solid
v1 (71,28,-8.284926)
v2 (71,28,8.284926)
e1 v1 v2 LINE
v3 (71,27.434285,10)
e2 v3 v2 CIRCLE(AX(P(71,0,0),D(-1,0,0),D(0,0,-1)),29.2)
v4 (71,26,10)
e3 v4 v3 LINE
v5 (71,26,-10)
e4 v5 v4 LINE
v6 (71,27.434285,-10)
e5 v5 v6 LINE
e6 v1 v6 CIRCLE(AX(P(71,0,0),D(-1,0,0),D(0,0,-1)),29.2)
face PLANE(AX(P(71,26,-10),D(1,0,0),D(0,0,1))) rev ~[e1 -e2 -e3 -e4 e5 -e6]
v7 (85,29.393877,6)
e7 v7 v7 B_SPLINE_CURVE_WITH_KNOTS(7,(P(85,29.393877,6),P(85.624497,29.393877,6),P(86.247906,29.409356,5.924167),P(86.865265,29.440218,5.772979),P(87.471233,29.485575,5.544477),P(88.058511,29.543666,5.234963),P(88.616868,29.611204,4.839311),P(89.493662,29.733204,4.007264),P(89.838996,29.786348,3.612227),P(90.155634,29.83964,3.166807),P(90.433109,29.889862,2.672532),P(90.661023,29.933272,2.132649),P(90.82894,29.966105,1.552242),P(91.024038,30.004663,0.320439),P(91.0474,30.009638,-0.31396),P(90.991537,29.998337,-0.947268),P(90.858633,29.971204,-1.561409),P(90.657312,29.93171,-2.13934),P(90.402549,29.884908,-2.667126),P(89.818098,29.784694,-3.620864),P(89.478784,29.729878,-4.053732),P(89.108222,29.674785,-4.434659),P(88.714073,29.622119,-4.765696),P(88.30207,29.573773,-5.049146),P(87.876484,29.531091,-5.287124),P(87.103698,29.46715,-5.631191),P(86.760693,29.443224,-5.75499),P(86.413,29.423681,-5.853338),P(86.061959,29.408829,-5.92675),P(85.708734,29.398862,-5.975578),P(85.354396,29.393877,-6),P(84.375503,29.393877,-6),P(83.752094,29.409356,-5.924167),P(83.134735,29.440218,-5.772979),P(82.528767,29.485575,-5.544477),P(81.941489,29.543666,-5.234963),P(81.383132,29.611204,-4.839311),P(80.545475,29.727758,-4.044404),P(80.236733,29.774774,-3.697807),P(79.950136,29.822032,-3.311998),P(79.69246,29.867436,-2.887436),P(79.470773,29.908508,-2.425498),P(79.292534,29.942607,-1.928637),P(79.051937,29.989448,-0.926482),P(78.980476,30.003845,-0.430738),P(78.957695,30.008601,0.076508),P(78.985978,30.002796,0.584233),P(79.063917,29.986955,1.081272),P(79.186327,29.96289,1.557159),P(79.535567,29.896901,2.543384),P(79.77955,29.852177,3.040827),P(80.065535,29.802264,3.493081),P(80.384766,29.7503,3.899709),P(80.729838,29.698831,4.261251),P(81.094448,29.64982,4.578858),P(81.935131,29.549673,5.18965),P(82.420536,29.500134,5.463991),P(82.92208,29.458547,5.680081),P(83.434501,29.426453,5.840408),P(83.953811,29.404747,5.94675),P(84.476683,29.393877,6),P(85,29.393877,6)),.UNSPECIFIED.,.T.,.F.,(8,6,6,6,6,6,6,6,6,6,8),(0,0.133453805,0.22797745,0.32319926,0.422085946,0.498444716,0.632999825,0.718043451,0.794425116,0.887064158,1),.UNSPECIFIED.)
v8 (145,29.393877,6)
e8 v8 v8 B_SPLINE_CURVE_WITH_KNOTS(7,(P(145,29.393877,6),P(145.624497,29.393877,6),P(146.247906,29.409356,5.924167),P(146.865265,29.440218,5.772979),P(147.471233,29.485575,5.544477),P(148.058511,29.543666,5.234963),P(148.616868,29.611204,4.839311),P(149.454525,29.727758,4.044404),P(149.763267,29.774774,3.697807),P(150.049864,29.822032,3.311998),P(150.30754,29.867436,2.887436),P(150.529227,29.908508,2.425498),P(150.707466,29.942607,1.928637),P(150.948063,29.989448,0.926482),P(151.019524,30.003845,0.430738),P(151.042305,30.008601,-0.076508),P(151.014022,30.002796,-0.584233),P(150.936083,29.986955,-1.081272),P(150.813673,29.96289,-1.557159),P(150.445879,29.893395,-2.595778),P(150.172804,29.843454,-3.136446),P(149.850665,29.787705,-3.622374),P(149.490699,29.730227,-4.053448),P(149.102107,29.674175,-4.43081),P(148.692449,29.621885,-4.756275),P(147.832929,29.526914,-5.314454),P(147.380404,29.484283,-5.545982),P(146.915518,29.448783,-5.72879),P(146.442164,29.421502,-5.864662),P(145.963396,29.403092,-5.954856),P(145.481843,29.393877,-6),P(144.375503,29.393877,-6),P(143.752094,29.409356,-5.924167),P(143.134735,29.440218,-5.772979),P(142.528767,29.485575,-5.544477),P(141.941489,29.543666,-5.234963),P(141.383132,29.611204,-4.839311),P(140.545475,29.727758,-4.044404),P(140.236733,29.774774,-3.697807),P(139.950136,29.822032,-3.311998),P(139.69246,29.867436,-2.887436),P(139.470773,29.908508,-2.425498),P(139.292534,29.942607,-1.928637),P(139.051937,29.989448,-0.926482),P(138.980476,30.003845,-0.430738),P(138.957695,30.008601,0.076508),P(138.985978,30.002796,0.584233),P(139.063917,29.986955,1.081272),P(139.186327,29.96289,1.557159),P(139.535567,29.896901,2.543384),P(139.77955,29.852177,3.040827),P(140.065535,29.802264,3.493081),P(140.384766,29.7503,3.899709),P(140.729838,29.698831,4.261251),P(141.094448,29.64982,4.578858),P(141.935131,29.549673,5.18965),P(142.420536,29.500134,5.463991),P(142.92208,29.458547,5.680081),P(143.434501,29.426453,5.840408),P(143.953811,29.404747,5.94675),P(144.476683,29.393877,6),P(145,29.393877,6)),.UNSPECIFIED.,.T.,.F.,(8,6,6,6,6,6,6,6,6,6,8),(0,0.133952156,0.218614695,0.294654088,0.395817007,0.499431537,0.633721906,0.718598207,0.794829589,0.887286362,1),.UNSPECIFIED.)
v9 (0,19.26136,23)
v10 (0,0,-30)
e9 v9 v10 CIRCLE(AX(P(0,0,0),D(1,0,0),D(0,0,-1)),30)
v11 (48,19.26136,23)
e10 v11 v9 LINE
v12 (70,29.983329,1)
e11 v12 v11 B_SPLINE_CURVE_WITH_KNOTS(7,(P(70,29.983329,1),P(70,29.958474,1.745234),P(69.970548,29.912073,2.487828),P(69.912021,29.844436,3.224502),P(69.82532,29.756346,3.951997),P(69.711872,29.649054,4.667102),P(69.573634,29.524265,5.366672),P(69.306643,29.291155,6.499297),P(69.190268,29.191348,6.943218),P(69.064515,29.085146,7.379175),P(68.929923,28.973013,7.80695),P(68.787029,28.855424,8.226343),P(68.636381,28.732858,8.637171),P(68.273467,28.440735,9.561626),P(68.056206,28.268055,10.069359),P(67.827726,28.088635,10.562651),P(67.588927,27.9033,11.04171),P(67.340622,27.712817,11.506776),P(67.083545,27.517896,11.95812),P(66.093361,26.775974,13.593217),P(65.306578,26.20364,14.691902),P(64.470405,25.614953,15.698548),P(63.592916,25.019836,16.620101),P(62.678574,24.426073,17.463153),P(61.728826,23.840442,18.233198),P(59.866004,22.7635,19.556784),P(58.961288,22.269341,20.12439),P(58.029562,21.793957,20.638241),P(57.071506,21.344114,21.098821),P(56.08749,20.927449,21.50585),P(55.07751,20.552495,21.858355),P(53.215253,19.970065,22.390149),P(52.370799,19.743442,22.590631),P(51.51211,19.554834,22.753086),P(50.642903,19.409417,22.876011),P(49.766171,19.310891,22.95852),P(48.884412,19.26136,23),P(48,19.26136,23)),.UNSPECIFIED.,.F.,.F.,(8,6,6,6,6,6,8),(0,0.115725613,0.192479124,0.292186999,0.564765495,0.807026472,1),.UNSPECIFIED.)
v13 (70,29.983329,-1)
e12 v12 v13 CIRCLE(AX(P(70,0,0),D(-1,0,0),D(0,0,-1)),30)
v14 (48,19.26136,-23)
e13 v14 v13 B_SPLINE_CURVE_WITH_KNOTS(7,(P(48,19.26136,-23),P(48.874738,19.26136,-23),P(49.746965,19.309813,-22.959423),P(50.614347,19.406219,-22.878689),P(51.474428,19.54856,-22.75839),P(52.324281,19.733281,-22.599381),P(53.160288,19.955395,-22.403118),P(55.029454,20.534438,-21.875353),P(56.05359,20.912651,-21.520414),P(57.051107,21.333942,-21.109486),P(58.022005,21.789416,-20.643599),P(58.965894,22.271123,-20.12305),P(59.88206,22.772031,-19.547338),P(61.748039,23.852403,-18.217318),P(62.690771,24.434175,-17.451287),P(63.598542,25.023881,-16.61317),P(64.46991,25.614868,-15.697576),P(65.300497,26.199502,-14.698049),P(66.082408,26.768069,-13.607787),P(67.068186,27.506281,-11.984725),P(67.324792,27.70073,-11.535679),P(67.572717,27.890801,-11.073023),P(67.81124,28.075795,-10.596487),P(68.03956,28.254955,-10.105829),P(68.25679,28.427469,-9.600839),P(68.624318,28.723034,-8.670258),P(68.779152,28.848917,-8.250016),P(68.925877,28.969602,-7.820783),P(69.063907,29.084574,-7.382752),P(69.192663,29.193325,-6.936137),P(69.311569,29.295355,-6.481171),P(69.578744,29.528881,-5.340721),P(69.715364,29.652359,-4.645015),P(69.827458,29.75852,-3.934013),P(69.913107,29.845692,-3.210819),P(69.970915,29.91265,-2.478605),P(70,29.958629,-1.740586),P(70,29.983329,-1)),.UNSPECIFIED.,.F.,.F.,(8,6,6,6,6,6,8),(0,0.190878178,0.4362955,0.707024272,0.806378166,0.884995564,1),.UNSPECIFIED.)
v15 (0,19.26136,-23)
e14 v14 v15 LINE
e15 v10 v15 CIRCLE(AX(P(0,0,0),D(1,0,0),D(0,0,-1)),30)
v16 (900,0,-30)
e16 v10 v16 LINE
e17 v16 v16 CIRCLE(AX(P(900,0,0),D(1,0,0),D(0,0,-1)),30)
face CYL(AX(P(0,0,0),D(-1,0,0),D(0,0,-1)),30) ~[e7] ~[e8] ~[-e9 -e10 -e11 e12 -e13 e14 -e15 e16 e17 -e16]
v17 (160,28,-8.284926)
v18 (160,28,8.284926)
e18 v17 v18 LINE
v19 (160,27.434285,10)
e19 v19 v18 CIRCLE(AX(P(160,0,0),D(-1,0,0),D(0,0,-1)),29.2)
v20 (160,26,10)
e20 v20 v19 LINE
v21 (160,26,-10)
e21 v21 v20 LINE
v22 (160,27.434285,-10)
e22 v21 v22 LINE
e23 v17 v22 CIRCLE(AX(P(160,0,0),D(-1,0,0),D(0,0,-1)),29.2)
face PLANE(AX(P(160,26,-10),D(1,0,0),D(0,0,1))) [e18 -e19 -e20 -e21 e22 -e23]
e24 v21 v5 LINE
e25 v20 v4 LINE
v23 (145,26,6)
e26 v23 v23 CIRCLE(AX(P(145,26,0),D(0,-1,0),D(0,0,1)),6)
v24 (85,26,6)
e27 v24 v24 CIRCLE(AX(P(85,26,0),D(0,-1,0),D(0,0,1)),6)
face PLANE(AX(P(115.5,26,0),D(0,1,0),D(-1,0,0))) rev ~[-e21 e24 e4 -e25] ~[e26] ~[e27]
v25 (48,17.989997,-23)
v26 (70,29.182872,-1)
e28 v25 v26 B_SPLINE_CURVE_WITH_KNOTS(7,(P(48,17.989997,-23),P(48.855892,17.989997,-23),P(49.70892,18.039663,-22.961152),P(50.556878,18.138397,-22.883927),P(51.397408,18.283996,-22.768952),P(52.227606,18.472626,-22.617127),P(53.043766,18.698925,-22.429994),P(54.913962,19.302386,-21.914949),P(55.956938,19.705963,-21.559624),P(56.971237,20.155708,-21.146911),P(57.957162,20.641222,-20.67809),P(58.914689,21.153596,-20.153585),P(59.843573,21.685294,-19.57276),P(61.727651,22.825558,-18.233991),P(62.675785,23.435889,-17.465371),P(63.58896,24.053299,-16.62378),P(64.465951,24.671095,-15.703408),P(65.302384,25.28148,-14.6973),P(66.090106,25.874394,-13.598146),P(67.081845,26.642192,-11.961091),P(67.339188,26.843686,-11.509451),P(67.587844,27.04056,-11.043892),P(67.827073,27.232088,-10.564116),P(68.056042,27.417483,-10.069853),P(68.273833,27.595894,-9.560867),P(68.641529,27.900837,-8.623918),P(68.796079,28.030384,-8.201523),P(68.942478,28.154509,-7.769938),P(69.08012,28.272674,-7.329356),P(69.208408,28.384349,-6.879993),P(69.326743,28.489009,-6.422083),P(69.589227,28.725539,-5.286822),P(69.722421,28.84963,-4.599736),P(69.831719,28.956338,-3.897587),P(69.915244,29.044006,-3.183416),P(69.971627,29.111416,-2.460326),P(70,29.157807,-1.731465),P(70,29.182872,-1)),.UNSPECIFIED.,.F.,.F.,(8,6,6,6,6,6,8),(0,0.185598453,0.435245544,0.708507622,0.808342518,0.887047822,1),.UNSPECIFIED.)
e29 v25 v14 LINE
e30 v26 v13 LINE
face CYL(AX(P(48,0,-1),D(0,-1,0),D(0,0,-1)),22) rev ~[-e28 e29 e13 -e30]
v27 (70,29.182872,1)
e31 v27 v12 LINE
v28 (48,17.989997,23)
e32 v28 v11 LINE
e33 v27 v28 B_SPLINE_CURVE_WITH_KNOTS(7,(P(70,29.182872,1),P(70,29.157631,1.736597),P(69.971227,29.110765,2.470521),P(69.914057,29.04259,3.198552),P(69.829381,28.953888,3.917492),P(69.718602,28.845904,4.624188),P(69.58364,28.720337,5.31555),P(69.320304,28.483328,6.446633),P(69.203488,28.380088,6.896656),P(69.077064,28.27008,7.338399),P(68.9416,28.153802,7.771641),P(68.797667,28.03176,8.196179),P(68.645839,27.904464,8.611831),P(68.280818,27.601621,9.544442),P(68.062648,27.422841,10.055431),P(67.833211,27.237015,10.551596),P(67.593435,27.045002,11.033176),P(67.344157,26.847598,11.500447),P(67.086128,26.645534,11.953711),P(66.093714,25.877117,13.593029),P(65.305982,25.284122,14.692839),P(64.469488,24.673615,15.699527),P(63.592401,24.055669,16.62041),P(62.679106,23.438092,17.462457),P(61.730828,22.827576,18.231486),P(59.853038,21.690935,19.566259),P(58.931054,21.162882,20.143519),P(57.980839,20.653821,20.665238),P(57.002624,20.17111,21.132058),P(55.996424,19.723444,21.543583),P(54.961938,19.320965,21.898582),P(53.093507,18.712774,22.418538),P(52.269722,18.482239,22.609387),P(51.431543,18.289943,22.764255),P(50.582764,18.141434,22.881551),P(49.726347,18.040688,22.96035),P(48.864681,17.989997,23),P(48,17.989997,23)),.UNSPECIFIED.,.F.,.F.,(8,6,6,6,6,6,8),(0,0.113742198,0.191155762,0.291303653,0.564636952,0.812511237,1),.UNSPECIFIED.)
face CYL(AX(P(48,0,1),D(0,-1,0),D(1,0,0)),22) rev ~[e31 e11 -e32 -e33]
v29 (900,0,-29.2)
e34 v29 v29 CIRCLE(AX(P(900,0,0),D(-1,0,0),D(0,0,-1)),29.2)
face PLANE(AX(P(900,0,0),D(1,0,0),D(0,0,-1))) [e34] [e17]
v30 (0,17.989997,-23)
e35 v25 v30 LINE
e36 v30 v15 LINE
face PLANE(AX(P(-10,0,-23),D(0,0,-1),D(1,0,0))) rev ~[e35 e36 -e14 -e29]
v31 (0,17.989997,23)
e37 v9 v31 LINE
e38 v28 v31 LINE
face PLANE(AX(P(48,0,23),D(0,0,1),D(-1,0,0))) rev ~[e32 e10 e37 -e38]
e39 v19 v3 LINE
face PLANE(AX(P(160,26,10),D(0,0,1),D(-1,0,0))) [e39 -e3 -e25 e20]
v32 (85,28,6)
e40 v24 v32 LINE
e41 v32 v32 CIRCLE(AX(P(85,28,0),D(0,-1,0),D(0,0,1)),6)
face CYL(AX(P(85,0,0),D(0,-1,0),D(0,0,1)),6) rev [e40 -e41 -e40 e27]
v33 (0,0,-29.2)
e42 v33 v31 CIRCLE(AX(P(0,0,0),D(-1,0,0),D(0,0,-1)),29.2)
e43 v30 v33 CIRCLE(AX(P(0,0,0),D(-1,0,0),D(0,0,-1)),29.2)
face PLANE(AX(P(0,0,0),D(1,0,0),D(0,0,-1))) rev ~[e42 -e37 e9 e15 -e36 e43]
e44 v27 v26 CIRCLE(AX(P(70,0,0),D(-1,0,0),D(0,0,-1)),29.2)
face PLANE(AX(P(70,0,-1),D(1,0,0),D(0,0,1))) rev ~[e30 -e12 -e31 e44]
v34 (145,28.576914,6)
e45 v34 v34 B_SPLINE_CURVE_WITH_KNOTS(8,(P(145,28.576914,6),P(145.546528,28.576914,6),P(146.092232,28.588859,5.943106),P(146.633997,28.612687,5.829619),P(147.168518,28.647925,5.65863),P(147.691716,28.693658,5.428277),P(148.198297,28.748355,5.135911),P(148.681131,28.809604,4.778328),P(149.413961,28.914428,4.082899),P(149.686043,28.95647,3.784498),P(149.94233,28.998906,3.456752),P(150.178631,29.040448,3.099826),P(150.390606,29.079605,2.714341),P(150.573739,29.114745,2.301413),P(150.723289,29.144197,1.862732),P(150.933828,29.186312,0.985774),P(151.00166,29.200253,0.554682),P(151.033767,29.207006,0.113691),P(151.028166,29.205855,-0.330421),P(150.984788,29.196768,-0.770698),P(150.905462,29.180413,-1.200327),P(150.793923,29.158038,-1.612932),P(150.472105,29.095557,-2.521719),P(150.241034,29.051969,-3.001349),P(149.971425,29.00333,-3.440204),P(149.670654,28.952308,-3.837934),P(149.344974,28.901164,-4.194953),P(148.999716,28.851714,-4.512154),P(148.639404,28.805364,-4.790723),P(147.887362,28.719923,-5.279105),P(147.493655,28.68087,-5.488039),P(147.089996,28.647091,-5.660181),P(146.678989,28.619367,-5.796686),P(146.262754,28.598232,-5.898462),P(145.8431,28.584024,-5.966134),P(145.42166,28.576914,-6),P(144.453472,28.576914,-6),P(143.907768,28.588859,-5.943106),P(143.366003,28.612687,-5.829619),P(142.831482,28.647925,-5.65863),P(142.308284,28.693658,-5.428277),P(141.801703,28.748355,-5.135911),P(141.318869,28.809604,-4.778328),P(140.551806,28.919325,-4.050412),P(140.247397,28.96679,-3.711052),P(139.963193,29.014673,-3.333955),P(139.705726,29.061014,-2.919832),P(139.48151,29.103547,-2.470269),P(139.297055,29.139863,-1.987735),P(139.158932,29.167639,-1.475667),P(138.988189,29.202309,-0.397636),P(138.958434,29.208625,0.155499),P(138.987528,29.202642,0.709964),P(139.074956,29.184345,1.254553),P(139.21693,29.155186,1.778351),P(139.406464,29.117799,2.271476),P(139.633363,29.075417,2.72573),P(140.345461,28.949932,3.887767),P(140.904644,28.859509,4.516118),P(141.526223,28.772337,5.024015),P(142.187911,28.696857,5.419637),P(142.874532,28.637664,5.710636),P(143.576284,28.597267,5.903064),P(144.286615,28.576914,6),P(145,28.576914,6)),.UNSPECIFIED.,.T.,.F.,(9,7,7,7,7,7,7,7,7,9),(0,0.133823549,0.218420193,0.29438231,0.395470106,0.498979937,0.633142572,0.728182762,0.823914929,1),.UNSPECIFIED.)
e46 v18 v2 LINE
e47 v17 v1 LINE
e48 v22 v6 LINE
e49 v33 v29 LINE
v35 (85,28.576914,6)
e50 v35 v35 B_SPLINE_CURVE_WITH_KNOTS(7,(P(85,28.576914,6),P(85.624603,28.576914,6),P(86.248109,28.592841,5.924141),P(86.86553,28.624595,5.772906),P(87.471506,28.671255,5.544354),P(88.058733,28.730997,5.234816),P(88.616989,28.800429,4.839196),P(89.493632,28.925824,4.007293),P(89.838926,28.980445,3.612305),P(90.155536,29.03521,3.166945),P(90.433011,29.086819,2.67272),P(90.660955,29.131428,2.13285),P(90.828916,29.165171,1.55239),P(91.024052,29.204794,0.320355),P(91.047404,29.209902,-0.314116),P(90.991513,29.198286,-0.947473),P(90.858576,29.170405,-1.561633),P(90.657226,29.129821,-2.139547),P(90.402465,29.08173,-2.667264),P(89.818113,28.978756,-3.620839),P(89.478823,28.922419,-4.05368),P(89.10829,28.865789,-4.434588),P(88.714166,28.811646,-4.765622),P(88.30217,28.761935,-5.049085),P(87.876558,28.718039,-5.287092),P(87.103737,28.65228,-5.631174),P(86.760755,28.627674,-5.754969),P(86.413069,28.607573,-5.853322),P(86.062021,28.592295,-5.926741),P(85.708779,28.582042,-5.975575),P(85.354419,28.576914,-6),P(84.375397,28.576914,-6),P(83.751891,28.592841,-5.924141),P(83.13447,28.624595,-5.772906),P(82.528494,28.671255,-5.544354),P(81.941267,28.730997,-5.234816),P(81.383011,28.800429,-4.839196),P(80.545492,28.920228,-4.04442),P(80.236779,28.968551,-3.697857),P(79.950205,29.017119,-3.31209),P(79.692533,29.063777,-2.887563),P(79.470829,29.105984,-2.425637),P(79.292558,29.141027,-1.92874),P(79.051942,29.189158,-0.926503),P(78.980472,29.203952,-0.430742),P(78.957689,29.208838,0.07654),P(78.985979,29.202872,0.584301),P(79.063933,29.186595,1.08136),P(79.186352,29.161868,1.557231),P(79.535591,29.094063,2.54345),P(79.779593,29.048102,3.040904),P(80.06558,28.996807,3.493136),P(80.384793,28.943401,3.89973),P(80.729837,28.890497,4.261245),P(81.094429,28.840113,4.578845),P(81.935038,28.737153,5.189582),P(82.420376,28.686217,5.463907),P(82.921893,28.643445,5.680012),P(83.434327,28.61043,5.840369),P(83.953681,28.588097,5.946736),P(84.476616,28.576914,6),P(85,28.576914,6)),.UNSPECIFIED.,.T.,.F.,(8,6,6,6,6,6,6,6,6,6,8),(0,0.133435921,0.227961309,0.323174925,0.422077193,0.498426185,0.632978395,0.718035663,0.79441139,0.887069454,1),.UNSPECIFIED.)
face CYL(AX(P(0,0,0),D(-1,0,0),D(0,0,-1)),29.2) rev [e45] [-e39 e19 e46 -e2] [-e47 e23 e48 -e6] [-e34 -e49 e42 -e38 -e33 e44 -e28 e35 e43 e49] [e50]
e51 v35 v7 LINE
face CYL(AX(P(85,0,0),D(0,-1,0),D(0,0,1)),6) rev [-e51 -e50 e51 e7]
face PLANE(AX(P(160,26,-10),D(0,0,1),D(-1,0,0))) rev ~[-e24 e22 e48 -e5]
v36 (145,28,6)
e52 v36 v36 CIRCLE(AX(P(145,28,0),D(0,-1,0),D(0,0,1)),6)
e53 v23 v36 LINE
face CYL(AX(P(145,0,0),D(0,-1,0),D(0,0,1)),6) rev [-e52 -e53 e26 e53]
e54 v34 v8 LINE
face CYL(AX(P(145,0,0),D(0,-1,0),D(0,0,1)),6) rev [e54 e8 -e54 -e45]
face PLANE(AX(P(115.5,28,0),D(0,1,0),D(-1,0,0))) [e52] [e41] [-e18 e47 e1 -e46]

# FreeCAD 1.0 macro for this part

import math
import FreeCAD as App
import Part
import Sketcher

V = App.Vector
Q = App.Units.Quantity


def faces_at(feature, points):
    """Names of the faces that lie closest to the given points."""
    faces = feature.Shape.Faces
    near = lambda p: min(range(len(faces)), key=lambda i: faces[i].distToShape(Part.Vertex(*p))[0])
    return sorted({f"Face{near(p) + 1}" for p in points})


def add_polygon(sketch, points):
    """Adds a closed chain of lines whose ends are joined by coincident constraints."""
    first, n = sketch.GeometryCount, len(points)
    for a, b in zip(points, points[1:] + points[:1]):
        sketch.addGeometry(Part.LineSegment(App.Vector(*a, 0), App.Vector(*b, 0)), False)
    for i in range(n):
        sketch.addConstraint(Sketcher.Constraint("Coincident", first + i, 2, first + (i + 1) % n, 1))

doc = App.newDocument("Part")
params = doc.addObject("Spreadsheet::Sheet", "Params")
for row, (alias, value) in enumerate([
    ("sketch1_diameter", "60 mm"),
    ("pad1_length", "900 mm"),
    ("thickness_wall", "0.8 mm"),
    ("sketch2_radius", "22 mm"),
    ("sketch2_width", "58 mm"),
    ("sketch2_height", "46 mm"),
    ("pocket1_length", "100 mm"),
    ("sketch3_width", "89 mm"),
    ("sketch3_height", "20 mm"),
    ("pad2_length", "2 mm"),
    ("sketch4_diameter", "12 mm"),
    ("pocket2_length", "100 mm"),
], start=1):
    params.set(f"A{row}", alias)
    params.set(f"B{row}", "=" + value)
    params.setAlias(f"B{row}", alias)

body = doc.addObject("PartDesign::Body", "Body")

sketch1 = body.newObject("Sketcher::SketchObject", "Sketch")
sketch1.AttachmentSupport = (doc.getObject("YZ_Plane"), [""])
sketch1.MapMode = "FlatFace"
sketch1.addGeometry(Part.Circle(V(0, 0, 0), V(0, 0, 1), 30), False)
sketch1.addConstraint([
    Sketcher.Constraint("Coincident", 0, 3, -1, 1),
    Sketcher.Constraint("Diameter", 0, Q("60 mm")),
])
sketch1.setExpression("Constraints[1]", "Params.sketch1_diameter")
pad1 = body.newObject("PartDesign::Pad", "Pad")
pad1.Profile = sketch1
pad1.setExpression("Length", "Params.pad1_length")
doc.recompute()

thickness = body.newObject("PartDesign::Thickness", "Thickness")
thickness.Base = (pad1, faces_at(pad1, [(900, 0, 0), (0, 0, 0)]))
thickness.setExpression("Value", "Params.thickness_wall")
thickness.Reversed = True
thickness.Join = "Intersection"

sketch2 = body.newObject("Sketcher::SketchObject", "Sketch001")
sketch2.AttachmentSupport = (doc.getObject("XZ_Plane"), [""])
sketch2.MapMode = "FlatFace"
sketch2.addGeometry([
    Part.LineSegment(V(48, -23, 0), V(-10, -23, 0)),
    Part.LineSegment(V(-10, -23, 0), V(-10, 23, 0)),
    Part.LineSegment(V(-10, 23, 0), V(48, 23, 0)),
    Part.ArcOfCircle(Part.Circle(V(48, 1, 0), V(0, 0, 1), 22), math.radians(0), math.radians(90)),
    Part.LineSegment(V(70, 1, 0), V(70, -1, 0)),
    Part.ArcOfCircle(Part.Circle(V(48, -1, 0), V(0, 0, 1), 22), math.radians(-90), math.radians(0)),
], False)
sketch2.addConstraint([
    Sketcher.Constraint("Coincident", 0, 2, 1, 1),
    Sketcher.Constraint("Coincident", 1, 2, 2, 1),
    Sketcher.Constraint("Tangent", 2, 2, 3, 2),
    Sketcher.Constraint("Tangent", 3, 1, 4, 1),
    Sketcher.Constraint("Tangent", 4, 2, 5, 2),
    Sketcher.Constraint("Tangent", 5, 1, 0, 1),
    Sketcher.Constraint("Horizontal", 0),
    Sketcher.Constraint("Vertical", 1),
    Sketcher.Constraint("Horizontal", 2),
    Sketcher.Constraint("Vertical", 4),
    Sketcher.Constraint("Equal", 3, 5),
    Sketcher.Constraint("Radius", 3, Q("22 mm")),
    Sketcher.Constraint("DistanceX", 0, 2, 0, 1, Q("58 mm")),
    Sketcher.Constraint("DistanceY", 1, 1, 1, 2, Q("46 mm")),
    Sketcher.Constraint("DistanceX", -1, 1, 3, 3, Q("48 mm")),
    Sketcher.Constraint("DistanceY", -1, 1, 3, 3, Q("1 mm")),
])
sketch2.setExpression("Constraints[11]", "Params.sketch2_radius")
sketch2.setExpression("Constraints[12]", "Params.sketch2_width")
sketch2.setExpression("Constraints[13]", "Params.sketch2_height")
pocket1 = body.newObject("PartDesign::Pocket", "Pocket")
pocket1.Profile = sketch2
pocket1.setExpression("Length", "Params.pocket1_length")

sketch3 = body.newObject("Sketcher::SketchObject", "Sketch002")
sketch3.AttachmentSupport = (doc.getObject("XZ_Plane"), [""])
sketch3.MapMode = "FlatFace"
sketch3.AttachmentOffset = App.Placement(V(0, 0, -26), App.Rotation())
add_polygon(sketch3, [(160, 10), (160, -10), (71, -10), (71, 10)])
sketch3.addConstraint([
    Sketcher.Constraint("Vertical", 0),
    Sketcher.Constraint("Horizontal", 1),
    Sketcher.Constraint("Vertical", 2),
    Sketcher.Constraint("Horizontal", 3),
    Sketcher.Constraint("DistanceX", 1, 2, 1, 1, Q("89 mm")),
    Sketcher.Constraint("DistanceY", 0, 2, 0, 1, Q("20 mm")),
    Sketcher.Constraint("DistanceX", -1, 1, 0, 2, Q("160 mm")),
    Sketcher.Constraint("DistanceY", 0, 2, -1, 1, Q("10 mm")),
])
sketch3.setExpression("Constraints[8]", "Params.sketch3_width")
sketch3.setExpression("Constraints[9]", "Params.sketch3_height")
pad2 = body.newObject("PartDesign::Pad", "Pad001")
pad2.Profile = sketch3
pad2.setExpression("Length", "Params.pad2_length")
pad2.Reversed = True

sketch4 = body.newObject("Sketcher::SketchObject", "Sketch003")
sketch4.AttachmentSupport = (doc.getObject("XZ_Plane"), [""])
sketch4.MapMode = "FlatFace"
sketch4.addGeometry([
    Part.Circle(V(85, 0, 0), V(0, 0, 1), 6),
    Part.Circle(V(145, 0, 0), V(0, 0, 1), 6),
], False)
sketch4.addConstraint([
    Sketcher.Constraint("Equal", 0, 1),
    Sketcher.Constraint("PointOnObject", 0, 3, -1),
    Sketcher.Constraint("PointOnObject", 1, 3, -1),
    Sketcher.Constraint("Diameter", 0, Q("12 mm")),
    Sketcher.Constraint("DistanceX", -1, 1, 0, 3, Q("85 mm")),
    Sketcher.Constraint("DistanceX", -1, 1, 1, 3, Q("145 mm")),
])
sketch4.setExpression("Constraints[3]", "Params.sketch4_diameter")
pocket2 = body.newObject("PartDesign::Pocket", "Pocket001")
pocket2.Profile = sketch4
pocket2.setExpression("Length", "Params.pocket2_length")

doc.recompute()
